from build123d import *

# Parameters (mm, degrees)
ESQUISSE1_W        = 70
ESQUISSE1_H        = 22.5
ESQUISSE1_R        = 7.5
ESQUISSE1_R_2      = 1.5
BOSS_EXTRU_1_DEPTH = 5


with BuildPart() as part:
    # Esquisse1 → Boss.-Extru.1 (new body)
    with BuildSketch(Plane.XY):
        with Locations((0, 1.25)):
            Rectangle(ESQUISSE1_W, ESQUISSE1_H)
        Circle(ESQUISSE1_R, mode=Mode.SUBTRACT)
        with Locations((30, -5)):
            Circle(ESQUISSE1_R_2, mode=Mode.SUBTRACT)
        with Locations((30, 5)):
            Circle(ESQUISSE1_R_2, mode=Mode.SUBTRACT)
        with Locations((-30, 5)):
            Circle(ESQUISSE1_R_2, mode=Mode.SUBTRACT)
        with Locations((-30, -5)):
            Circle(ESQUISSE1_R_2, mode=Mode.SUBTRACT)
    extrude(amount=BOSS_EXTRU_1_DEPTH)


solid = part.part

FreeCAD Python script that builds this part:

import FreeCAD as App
import Part
import Sketcher

V = App.Vector

doc = App.newDocument("Part")
body = doc.addObject("PartDesign::Body", "Body")

# Sketch on XY plane
sketch1 = body.newObject("Sketcher::SketchObject", "Sketch")
sketch1.AttachmentSupport = (doc.getObject("XY_Plane"), [""])
sketch1.MapMode = "FlatFace"
sketch1.addGeometry([
    Part.LineSegment(V(-35, 12.5, 0), V(-35, -10, 0)),  # 0
    Part.LineSegment(V(-35, -10, 0), V(35, -10, 0)),  # 1
    Part.LineSegment(V(35, -10, 0), V(35, 12.5, 0)),  # 2
    Part.LineSegment(V(35, 12.5, 0), V(-35, 12.5, 0)),  # 3
    Part.Circle(V(-30, -5, 0), V(0, 0, 1), 1.5),  # 4
    Part.Circle(V(30, -5, 0), V(0, 0, 1), 1.5),  # 5
    Part.Circle(V(-30, 5, 0), V(0, 0, 1), 1.5),  # 6
    Part.Circle(V(0, 0, 0), V(0, 0, 1), 7.5),  # 7
    Part.Circle(V(30, 5, 0), V(0, 0, 1), 1.5),  # 8
], False)
sketch1.addConstraint([
    Sketcher.Constraint("Coincident", 0, 2, 1, 1),
    Sketcher.Constraint("Coincident", 1, 2, 2, 1),
    Sketcher.Constraint("Coincident", 2, 2, 3, 1),
    Sketcher.Constraint("Coincident", 3, 2, 0, 1),
    Sketcher.Constraint("Vertical", 0),
    Sketcher.Constraint("Horizontal", 1),
    Sketcher.Constraint("Vertical", 2),
    Sketcher.Constraint("Horizontal", 3),
    Sketcher.Constraint("Coincident", 7, 3, -1, 1),
    Sketcher.Constraint("Equal", 4, 5),
    Sketcher.Constraint("Equal", 5, 6),
    Sketcher.Constraint("Equal", 6, 8),
    Sketcher.Constraint("Symmetric", 5, 3, 6, 3, -1, 1),
    Sketcher.Constraint("Symmetric", 4, 3, 8, 3, -1, 1),
    Sketcher.Constraint("Symmetric", 4, 3, 5, 3, -2),
    Sketcher.Constraint("Diameter", 4, 3.0),
    Sketcher.Constraint("Diameter", 7, 15.0),
    Sketcher.Constraint("DistanceX", 1, 1, 1, 2, 70.0),
    Sketcher.Constraint("DistanceY", 0, 2, 0, 1, 22.5),
    Sketcher.Constraint("DistanceX", 4, 3, -1, 1, 30.0),
    Sketcher.Constraint("DistanceY", 4, 3, -1, 1, 5.0),
    Sketcher.Constraint("DistanceX", 0, 2, -1, 1, 35.0),
    Sketcher.Constraint("DistanceY", 0, 2, -1, 1, 10.0),
])
pad1 = body.newObject("PartDesign::Pad", "Pad")
pad1.Profile = sketch1
pad1.Length = 5

doc.recompute()
